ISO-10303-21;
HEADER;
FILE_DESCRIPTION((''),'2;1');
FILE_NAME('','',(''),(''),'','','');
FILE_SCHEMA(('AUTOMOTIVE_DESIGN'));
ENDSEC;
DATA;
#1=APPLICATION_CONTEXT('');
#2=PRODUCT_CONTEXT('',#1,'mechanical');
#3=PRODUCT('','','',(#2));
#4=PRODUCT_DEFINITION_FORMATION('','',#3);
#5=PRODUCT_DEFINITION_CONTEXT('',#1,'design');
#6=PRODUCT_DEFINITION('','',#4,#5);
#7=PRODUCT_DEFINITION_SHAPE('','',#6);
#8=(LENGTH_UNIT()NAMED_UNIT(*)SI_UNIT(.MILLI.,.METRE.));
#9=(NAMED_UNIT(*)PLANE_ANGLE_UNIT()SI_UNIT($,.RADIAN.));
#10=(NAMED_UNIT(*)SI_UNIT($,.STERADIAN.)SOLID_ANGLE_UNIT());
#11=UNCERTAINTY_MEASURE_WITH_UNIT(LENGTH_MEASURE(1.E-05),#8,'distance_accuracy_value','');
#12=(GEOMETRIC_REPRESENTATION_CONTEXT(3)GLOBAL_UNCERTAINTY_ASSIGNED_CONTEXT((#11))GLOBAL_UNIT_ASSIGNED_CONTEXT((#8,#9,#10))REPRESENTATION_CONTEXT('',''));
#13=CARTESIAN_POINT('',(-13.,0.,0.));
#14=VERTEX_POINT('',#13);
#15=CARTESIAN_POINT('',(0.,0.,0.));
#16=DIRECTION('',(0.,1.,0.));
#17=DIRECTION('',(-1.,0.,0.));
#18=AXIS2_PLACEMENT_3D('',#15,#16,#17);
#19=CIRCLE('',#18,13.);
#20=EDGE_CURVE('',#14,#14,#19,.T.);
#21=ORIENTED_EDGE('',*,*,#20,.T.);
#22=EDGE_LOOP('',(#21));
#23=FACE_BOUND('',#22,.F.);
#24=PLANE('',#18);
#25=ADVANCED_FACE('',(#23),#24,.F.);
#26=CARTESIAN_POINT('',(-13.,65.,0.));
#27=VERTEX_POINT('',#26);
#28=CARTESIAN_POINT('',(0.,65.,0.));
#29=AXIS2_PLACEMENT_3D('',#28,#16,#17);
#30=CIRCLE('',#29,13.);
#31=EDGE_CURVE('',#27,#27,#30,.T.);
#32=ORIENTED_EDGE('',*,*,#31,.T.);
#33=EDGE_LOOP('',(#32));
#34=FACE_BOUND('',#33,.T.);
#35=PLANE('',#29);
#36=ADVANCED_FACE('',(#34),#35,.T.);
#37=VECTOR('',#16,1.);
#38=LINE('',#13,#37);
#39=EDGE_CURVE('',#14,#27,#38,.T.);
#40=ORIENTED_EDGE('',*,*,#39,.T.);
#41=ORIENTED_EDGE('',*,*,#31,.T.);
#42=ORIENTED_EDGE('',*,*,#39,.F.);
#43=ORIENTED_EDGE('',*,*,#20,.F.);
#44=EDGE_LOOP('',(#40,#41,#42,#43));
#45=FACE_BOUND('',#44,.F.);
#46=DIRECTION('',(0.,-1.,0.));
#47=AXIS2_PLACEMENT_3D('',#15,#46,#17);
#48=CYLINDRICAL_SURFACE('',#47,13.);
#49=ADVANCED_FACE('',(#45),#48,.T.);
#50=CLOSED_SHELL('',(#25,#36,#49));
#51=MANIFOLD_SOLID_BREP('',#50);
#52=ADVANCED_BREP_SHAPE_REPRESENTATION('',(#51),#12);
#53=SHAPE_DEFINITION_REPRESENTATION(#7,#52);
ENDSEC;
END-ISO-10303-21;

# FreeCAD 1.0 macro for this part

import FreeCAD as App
import Part
import Sketcher

V = App.Vector

doc = App.newDocument("Part")
body = doc.addObject("PartDesign::Body", "Body")

# Sketch on XZ plane
sketch1 = body.newObject("Sketcher::SketchObject", "Sketch")
sketch1.AttachmentSupport = (doc.getObject("XZ_Plane"), [""])
sketch1.MapMode = "FlatFace"
sketch1.addGeometry(Part.Circle(V(0, 0, 0), V(0, 0, 1), 13), False)
sketch1.addConstraint([
    Sketcher.Constraint("Coincident", 0, 3, -1, 1),
    Sketcher.Constraint("Diameter", 0, 26.0),
])
pad1 = body.newObject("PartDesign::Pad", "Pad")
pad1.Profile = sketch1
pad1.Length = 65
pad1.Reversed = True

doc.recompute()
